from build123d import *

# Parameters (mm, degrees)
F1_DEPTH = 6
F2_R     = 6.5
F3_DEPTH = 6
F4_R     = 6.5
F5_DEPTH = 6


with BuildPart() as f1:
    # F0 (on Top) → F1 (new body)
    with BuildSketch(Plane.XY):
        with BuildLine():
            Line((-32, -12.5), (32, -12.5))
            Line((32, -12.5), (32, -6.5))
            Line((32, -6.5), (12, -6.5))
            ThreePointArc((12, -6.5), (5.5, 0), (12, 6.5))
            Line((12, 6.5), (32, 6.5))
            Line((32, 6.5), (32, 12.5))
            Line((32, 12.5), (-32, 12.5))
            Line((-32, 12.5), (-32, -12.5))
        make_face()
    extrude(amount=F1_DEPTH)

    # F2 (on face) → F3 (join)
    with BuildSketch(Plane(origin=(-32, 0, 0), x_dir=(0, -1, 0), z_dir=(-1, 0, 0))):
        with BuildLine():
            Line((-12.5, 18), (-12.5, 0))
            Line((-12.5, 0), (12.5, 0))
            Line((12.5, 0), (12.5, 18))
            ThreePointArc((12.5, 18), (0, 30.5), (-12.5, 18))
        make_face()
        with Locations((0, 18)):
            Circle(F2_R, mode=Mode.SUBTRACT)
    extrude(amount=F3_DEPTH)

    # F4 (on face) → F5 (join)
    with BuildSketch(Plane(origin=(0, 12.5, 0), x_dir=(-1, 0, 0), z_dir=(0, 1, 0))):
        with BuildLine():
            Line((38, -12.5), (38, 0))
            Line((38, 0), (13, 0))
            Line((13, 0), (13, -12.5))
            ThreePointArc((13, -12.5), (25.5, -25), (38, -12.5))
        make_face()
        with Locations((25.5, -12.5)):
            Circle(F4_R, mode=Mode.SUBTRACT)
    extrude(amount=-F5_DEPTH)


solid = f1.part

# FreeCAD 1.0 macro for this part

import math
import FreeCAD as App
import Part
import Sketcher
Q = App.Units.Quantity

doc = App.newDocument("Part")
params = doc.addObject("Spreadsheet::Sheet", "Params")
for row, (alias, value) in enumerate([
    ("sketch1_radius", "6.5 mm"),
    ("sketch1_width", "64 mm"),
    ("sketch1_width2", "20 mm"),
    ("sketch1_height", "6 mm"),
    ("pad1_length", "6 mm"),
    ("sketch2_diameter", "13 mm"),
    ("sketch2_radius", "12.5 mm"),
    ("sketch2_height", "18 mm"),
    ("pad2_length", "6 mm"),
    ("sketch3_diameter", "13 mm"),
    ("sketch3_radius", "12.5 mm"),
    ("sketch3_height", "12.5 mm"),
    ("pad3_length", "6 mm"),
], start=1):
    params.set(f"A{row}", alias)
    params.set(f"B{row}", "=" + value)
    params.setAlias(f"B{row}", alias)

body = doc.addObject("PartDesign::Body", "Body")

sketch1 = body.newObject("Sketcher::SketchObject", "Sketch")
sketch1.AttachmentSupport = (doc.getObject("XY_Plane"), [""])
sketch1.MapMode = "FlatFace"
sketch1.addGeometry(Part.LineSegment(App.Vector(-32, -12.5, 0), App.Vector(32, -12.5, 0)), False)
sketch1.addGeometry(Part.LineSegment(App.Vector(32, -12.5, 0), App.Vector(32, -6.5, 0)), False)
sketch1.addGeometry(Part.LineSegment(App.Vector(32, -6.5, 0), App.Vector(12, -6.5, 0)), False)
sketch1.addGeometry(Part.ArcOfCircle(Part.Circle(App.Vector(12, 0, 0), App.Vector(0, 0, 1), 6.5), math.radians(90), math.radians(270)), False)
sketch1.addGeometry(Part.LineSegment(App.Vector(12, 6.5, 0), App.Vector(32, 6.5, 0)), False)
sketch1.addGeometry(Part.LineSegment(App.Vector(32, 6.5, 0), App.Vector(32, 12.5, 0)), False)
sketch1.addGeometry(Part.LineSegment(App.Vector(32, 12.5, 0), App.Vector(-32, 12.5, 0)), False)
sketch1.addGeometry(Part.LineSegment(App.Vector(-32, 12.5, 0), App.Vector(-32, -12.5, 0)), False)
sketch1.addConstraint(Sketcher.Constraint("Coincident", 0, 2, 1, 1))
sketch1.addConstraint(Sketcher.Constraint("Coincident", 1, 2, 2, 1))
sketch1.addConstraint(Sketcher.Constraint("Tangent", 2, 2, 3, 2))
sketch1.addConstraint(Sketcher.Constraint("Tangent", 3, 1, 4, 1))
sketch1.addConstraint(Sketcher.Constraint("Coincident", 4, 2, 5, 1))
sketch1.addConstraint(Sketcher.Constraint("Coincident", 5, 2, 6, 1))
sketch1.addConstraint(Sketcher.Constraint("Coincident", 6, 2, 7, 1))
sketch1.addConstraint(Sketcher.Constraint("Coincident", 7, 2, 0, 1))
sketch1.addConstraint(Sketcher.Constraint("Horizontal", 0))
sketch1.addConstraint(Sketcher.Constraint("Vertical", 1))
sketch1.addConstraint(Sketcher.Constraint("Horizontal", 2))
sketch1.addConstraint(Sketcher.Constraint("Horizontal", 4))
sketch1.addConstraint(Sketcher.Constraint("Vertical", 5))
sketch1.addConstraint(Sketcher.Constraint("Horizontal", 6))
sketch1.addConstraint(Sketcher.Constraint("Vertical", 7))
sketch1.addConstraint(Sketcher.Constraint("Symmetric", 0, 2, 6, 2, -1, 1))
sketch1.addConstraint(Sketcher.Constraint("Symmetric", 1, 2, 4, 2, -1))
sketch1.addConstraint(Sketcher.Constraint("Radius", 3, Q("6.5 mm")))
sketch1.addConstraint(Sketcher.Constraint("DistanceX", 0, 1, 0, 2, Q("64 mm")))
sketch1.addConstraint(Sketcher.Constraint("DistanceX", 2, 2, 2, 1, Q("20 mm")))
sketch1.addConstraint(Sketcher.Constraint("DistanceY", 1, 1, 1, 2, Q("6 mm")))
sketch1.setExpression("Constraints[17]", "Params.sketch1_radius")
sketch1.setExpression("Constraints[18]", "Params.sketch1_width")
sketch1.setExpression("Constraints[19]", "Params.sketch1_width2")
sketch1.setExpression("Constraints[20]", "Params.sketch1_height")
pad1 = body.newObject("PartDesign::Pad", "Pad")
pad1.Profile = sketch1
pad1.setExpression("Length", "Params.pad1_length")

sketch2 = body.newObject("Sketcher::SketchObject", "Sketch001")
sketch2.AttachmentSupport = (doc.getObject("YZ_Plane"), [""])
sketch2.MapMode = "FlatFace"
sketch2.AttachmentOffset = App.Placement(App.Vector(0, 0, -32), App.Rotation())
sketch2.addGeometry(Part.LineSegment(App.Vector(12.5, 18, 0), App.Vector(12.5, 0, 0)), False)
sketch2.addGeometry(Part.LineSegment(App.Vector(12.5, 0, 0), App.Vector(-12.5, 0, 0)), False)
sketch2.addGeometry(Part.LineSegment(App.Vector(-12.5, 0, 0), App.Vector(-12.5, 18, 0)), False)
sketch2.addGeometry(Part.ArcOfCircle(Part.Circle(App.Vector(0, 18, 0), App.Vector(0, 0, 1), 12.5), math.radians(0), math.radians(180)), False)
sketch2.addGeometry(Part.Circle(App.Vector(0, 18, 0), App.Vector(0, 0, 1), 6.5), False)
sketch2.addConstraint(Sketcher.Constraint("Coincident", 0, 2, 1, 1))
sketch2.addConstraint(Sketcher.Constraint("Coincident", 1, 2, 2, 1))
sketch2.addConstraint(Sketcher.Constraint("Tangent", 2, 2, 3, 2))
sketch2.addConstraint(Sketcher.Constraint("Tangent", 3, 1, 0, 1))
sketch2.addConstraint(Sketcher.Constraint("Vertical", 0))
sketch2.addConstraint(Sketcher.Constraint("Horizontal", 1))
sketch2.addConstraint(Sketcher.Constraint("Vertical", 2))
sketch2.addConstraint(Sketcher.Constraint("Coincident", 4, 3, 3, 3))
sketch2.addConstraint(Sketcher.Constraint("Symmetric", 0, 2, 1, 2, -1, 1))
sketch2.addConstraint(Sketcher.Constraint("Diameter", 4, Q("13 mm")))
sketch2.addConstraint(Sketcher.Constraint("Radius", 3, Q("12.5 mm")))
sketch2.addConstraint(Sketcher.Constraint("DistanceY", 0, 2, 0, 1, Q("18 mm")))
sketch2.setExpression("Constraints[9]", "Params.sketch2_diameter")
sketch2.setExpression("Constraints[10]", "Params.sketch2_radius")
sketch2.setExpression("Constraints[11]", "Params.sketch2_height")
pad2 = body.newObject("PartDesign::Pad", "Pad001")
pad2.Profile = sketch2
pad2.setExpression("Length", "Params.pad2_length")
pad2.Reversed = True

sketch3 = body.newObject("Sketcher::SketchObject", "Sketch002")
sketch3.AttachmentSupport = (doc.getObject("XZ_Plane"), [""])
sketch3.MapMode = "FlatFace"
sketch3.AttachmentOffset = App.Placement(App.Vector(0, 0, -12.5), App.Rotation())
sketch3.addGeometry(Part.LineSegment(App.Vector(-38, -12.5, 0), App.Vector(-38, 0, 0)), False)
sketch3.addGeometry(Part.LineSegment(App.Vector(-38, 0, 0), App.Vector(-13, 0, 0)), False)
sketch3.addGeometry(Part.LineSegment(App.Vector(-13, 0, 0), App.Vector(-13, -12.5, 0)), False)
sketch3.addGeometry(Part.ArcOfCircle(Part.Circle(App.Vector(-25.5, -12.5, 0), App.Vector(0, 0, 1), 12.5), math.radians(180), math.radians(360)), False)
sketch3.addGeometry(Part.Circle(App.Vector(-25.5, -12.5, 0), App.Vector(0, 0, 1), 6.5), False)
sketch3.addConstraint(Sketcher.Constraint("Coincident", 0, 2, 1, 1))
sketch3.addConstraint(Sketcher.Constraint("Coincident", 1, 2, 2, 1))
sketch3.addConstraint(Sketcher.Constraint("Tangent", 2, 2, 3, 2))
sketch3.addConstraint(Sketcher.Constraint("Tangent", 3, 1, 0, 1))
sketch3.addConstraint(Sketcher.Constraint("Vertical", 0))
sketch3.addConstraint(Sketcher.Constraint("Horizontal", 1))
sketch3.addConstraint(Sketcher.Constraint("Vertical", 2))
sketch3.addConstraint(Sketcher.Constraint("Coincident", 4, 3, 3, 3))
sketch3.addConstraint(Sketcher.Constraint("PointOnObject", 0, 2, -1))
sketch3.addConstraint(Sketcher.Constraint("Diameter", 4, Q("13 mm")))
sketch3.addConstraint(Sketcher.Constraint("Radius", 3, Q("12.5 mm")))
sketch3.addConstraint(Sketcher.Constraint("DistanceY", 0, 1, 0, 2, Q("12.5 mm")))
sketch3.addConstraint(Sketcher.Constraint("DistanceX", 0, 2, -1, 1, Q("38 mm")))
sketch3.setExpression("Constraints[9]", "Params.sketch3_diameter")
sketch3.setExpression("Constraints[10]", "Params.sketch3_radius")
sketch3.setExpression("Constraints[11]", "Params.sketch3_height")
pad3 = body.newObject("PartDesign::Pad", "Pad002")
pad3.Profile = sketch3
pad3.setExpression("Length", "Params.pad3_length")

doc.recompute()
